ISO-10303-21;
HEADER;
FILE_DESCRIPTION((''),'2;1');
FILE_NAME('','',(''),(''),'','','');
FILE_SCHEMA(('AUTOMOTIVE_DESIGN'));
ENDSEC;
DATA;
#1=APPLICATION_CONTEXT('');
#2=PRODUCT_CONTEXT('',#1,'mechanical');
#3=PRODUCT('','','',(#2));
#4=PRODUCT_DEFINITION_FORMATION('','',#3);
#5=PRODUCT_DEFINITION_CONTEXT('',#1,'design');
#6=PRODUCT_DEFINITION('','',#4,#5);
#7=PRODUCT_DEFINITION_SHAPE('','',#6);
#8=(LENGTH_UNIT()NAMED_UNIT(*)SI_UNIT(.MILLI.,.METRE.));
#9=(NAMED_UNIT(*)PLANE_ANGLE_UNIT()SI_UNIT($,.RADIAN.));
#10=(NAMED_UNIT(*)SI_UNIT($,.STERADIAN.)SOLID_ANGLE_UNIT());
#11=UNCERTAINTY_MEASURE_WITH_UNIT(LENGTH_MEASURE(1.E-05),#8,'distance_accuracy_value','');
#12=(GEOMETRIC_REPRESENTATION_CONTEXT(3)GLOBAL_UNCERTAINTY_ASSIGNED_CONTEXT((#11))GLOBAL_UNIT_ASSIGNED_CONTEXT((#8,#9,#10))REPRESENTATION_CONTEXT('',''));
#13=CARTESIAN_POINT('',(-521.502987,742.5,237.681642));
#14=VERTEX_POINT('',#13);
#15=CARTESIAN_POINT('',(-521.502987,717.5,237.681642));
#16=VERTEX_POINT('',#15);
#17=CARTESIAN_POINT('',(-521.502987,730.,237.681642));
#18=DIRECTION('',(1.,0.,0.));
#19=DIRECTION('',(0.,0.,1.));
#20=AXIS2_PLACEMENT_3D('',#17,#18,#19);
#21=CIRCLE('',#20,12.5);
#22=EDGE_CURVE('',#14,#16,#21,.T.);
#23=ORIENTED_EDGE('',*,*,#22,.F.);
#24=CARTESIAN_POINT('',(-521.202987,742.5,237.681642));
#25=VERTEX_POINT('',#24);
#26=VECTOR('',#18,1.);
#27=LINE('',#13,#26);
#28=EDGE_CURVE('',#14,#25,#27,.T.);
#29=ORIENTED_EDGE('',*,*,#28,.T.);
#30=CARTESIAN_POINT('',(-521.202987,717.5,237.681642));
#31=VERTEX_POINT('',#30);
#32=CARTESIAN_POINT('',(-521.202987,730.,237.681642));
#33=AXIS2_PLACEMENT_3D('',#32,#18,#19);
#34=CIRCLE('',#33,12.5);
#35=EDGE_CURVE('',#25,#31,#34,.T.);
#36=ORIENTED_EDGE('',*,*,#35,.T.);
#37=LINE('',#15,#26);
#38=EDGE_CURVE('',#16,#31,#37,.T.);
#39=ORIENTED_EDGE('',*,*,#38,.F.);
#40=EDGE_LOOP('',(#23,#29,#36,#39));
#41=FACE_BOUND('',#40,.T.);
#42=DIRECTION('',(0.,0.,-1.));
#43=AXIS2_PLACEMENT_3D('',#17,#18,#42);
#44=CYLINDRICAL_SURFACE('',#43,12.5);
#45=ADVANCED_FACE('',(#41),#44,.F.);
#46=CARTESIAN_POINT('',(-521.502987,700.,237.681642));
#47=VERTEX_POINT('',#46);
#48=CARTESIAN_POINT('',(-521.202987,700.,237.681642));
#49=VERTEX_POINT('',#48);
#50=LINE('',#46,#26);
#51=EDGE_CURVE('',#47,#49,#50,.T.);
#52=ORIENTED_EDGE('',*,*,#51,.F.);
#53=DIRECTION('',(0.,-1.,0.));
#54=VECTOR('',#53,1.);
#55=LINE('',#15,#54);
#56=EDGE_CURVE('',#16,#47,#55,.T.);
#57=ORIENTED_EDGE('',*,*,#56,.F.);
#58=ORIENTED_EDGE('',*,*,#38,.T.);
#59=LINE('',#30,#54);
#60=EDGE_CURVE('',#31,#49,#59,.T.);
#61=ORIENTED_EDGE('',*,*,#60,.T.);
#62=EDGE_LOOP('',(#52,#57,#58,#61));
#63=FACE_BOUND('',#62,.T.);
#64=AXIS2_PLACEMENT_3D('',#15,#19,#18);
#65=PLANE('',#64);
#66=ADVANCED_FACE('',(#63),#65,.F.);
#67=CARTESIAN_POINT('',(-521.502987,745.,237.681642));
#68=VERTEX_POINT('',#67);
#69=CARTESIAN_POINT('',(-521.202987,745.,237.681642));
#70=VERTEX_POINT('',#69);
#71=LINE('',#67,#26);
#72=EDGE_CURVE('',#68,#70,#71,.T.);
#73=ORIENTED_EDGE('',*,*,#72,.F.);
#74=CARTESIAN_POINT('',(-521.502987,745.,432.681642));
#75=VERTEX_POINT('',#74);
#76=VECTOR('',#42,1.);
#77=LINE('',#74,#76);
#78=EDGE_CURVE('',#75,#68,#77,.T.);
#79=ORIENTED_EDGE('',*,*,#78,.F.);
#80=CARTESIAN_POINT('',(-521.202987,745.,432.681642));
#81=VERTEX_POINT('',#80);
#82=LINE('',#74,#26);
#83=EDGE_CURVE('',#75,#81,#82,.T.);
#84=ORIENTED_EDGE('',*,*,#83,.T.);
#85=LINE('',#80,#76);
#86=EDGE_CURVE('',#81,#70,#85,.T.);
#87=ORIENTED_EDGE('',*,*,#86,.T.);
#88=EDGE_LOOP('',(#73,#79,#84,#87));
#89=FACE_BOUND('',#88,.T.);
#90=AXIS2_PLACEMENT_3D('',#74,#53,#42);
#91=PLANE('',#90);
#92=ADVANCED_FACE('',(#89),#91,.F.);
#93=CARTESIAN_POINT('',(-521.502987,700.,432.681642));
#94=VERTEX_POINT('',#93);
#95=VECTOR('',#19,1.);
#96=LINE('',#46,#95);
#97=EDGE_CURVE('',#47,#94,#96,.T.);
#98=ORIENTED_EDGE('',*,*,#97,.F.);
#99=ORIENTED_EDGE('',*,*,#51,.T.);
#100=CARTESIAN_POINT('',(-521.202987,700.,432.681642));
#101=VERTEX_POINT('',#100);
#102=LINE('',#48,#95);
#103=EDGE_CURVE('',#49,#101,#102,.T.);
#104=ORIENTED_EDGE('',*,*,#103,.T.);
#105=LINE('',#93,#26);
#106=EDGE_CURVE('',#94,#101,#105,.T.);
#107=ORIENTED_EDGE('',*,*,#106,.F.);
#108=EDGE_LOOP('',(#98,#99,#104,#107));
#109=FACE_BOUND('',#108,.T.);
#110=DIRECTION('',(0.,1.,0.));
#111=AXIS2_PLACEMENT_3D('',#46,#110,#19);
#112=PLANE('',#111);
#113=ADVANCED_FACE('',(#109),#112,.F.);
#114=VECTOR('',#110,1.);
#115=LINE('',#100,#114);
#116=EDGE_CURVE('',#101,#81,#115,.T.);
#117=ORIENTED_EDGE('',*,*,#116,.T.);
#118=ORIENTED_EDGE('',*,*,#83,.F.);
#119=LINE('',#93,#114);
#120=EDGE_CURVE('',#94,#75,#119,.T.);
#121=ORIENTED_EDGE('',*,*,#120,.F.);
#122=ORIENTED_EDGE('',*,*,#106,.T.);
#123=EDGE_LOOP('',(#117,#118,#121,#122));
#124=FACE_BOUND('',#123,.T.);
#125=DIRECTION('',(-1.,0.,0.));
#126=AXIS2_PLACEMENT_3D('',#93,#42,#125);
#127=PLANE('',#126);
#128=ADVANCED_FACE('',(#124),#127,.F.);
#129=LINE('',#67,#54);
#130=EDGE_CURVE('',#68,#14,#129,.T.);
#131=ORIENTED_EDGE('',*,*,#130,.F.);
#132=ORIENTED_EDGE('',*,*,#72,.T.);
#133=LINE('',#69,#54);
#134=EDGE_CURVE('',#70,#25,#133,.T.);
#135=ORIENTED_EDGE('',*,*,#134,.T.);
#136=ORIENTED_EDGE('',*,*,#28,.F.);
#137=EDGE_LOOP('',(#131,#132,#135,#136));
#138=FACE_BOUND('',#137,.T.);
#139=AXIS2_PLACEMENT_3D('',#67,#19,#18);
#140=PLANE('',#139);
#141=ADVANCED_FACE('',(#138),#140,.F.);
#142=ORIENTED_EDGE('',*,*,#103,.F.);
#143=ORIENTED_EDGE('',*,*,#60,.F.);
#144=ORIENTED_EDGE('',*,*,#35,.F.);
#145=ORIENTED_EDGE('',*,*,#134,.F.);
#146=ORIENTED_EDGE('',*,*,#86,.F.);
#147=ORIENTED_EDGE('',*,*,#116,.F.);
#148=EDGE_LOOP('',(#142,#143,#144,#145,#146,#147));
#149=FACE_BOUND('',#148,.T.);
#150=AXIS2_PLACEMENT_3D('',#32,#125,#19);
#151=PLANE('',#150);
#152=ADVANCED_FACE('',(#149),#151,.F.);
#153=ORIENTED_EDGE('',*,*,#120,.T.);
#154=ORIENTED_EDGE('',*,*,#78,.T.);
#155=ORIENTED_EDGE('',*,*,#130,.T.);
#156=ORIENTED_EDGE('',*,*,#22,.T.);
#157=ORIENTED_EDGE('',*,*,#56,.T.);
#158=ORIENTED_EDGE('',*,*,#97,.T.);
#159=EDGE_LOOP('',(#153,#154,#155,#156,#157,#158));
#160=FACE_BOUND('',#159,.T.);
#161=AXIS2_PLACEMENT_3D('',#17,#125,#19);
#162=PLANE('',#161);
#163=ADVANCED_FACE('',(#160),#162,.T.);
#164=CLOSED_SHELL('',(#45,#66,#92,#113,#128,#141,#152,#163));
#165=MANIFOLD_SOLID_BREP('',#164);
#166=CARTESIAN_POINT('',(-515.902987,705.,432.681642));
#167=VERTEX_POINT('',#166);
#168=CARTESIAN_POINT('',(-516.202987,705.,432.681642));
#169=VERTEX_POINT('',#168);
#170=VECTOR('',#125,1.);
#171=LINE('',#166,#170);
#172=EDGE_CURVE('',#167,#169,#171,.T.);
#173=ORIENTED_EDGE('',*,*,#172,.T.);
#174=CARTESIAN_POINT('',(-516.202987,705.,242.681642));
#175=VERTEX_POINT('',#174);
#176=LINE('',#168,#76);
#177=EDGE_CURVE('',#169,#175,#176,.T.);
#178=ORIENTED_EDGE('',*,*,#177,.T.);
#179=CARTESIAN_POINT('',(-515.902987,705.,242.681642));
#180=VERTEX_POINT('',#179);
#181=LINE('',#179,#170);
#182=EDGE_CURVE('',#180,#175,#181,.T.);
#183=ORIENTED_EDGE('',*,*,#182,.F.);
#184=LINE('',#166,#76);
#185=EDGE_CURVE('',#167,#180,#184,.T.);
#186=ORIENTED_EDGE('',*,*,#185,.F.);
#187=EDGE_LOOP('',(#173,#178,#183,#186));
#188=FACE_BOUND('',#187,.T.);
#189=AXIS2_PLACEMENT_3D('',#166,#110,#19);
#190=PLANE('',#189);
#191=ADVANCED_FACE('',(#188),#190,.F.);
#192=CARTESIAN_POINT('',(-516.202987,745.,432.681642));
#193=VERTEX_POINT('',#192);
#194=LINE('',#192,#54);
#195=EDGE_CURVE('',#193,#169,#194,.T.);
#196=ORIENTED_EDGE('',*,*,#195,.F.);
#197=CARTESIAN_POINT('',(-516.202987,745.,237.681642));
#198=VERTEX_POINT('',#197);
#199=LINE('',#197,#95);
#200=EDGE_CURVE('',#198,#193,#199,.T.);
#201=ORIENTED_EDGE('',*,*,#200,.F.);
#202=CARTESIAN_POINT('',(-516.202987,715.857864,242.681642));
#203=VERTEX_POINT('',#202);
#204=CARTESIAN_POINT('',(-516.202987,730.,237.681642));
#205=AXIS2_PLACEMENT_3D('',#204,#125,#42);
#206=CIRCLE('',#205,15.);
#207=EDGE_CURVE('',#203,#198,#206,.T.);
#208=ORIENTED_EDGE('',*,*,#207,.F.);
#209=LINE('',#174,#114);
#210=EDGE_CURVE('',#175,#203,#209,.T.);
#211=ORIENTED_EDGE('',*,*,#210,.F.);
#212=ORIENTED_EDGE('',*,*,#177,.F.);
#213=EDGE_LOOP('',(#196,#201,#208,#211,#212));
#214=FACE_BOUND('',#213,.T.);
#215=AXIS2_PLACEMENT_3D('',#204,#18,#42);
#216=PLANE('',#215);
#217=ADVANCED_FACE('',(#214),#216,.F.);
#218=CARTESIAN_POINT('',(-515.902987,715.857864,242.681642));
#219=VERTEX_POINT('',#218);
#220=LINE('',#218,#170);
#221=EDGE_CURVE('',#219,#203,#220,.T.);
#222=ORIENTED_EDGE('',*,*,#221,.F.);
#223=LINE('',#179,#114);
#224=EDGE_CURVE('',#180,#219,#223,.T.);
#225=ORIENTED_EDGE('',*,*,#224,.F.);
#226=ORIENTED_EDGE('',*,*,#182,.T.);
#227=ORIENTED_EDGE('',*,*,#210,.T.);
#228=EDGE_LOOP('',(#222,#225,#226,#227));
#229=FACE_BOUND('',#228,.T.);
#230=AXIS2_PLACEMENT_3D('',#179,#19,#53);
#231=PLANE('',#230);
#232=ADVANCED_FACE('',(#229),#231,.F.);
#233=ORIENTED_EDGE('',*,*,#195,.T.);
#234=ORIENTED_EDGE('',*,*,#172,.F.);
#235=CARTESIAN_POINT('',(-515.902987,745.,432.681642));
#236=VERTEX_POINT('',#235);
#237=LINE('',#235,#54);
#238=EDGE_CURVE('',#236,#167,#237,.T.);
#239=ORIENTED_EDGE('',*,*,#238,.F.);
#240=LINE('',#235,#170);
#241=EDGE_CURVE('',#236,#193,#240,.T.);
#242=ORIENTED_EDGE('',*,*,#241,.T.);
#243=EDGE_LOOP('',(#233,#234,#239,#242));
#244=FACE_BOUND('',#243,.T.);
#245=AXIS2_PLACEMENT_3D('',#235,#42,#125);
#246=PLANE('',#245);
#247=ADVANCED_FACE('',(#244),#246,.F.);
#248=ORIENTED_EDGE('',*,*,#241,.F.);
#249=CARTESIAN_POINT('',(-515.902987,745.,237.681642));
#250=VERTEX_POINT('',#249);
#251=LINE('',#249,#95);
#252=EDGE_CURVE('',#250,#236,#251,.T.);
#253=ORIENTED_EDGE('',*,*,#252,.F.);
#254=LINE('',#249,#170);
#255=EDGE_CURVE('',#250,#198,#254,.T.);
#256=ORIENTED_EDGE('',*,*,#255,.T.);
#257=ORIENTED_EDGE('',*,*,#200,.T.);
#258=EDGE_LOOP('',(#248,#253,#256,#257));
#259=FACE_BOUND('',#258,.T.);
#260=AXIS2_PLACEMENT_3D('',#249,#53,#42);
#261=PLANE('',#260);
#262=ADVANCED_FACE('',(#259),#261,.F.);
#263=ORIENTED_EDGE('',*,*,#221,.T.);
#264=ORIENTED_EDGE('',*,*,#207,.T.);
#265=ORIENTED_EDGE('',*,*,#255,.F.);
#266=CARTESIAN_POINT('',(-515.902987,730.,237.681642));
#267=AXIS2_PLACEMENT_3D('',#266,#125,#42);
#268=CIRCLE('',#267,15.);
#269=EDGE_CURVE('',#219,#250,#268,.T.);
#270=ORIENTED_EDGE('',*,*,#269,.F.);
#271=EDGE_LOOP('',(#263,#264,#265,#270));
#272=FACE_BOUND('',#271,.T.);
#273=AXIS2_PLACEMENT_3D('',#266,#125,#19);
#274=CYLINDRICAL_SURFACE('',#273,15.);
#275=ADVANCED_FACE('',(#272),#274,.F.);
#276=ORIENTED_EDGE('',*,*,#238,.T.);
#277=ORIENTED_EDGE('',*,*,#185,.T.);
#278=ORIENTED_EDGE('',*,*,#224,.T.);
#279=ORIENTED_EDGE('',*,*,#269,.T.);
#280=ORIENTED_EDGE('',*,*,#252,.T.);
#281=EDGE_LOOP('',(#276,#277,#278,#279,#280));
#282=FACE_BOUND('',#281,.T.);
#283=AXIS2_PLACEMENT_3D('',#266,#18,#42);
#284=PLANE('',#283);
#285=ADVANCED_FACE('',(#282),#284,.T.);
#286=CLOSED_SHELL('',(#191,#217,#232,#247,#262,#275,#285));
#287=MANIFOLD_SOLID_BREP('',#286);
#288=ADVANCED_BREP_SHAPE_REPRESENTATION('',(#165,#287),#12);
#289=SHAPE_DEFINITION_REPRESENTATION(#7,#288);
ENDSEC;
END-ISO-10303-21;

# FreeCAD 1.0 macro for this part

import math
import FreeCAD as App
import Part
import Sketcher

V = App.Vector
Q = App.Units.Quantity

doc = App.newDocument("Part")
body = doc.addObject("PartDesign::Body", "Body")

sketch1 = body.newObject("Sketcher::SketchObject", "Sketch")
sketch1.AttachmentSupport = (doc.getObject("YZ_Plane"), [""])
sketch1.MapMode = "FlatFace"
sketch1.AttachmentOffset = App.Placement(V(0, 0, -516.202987), App.Rotation())
sketch1.addGeometry([
    Part.LineSegment(V(705, 432.681642, 0), V(705, 242.681642, 0)),
    Part.LineSegment(V(705, 242.681642, 0), V(715.857864, 242.681642, 0)),
    Part.ArcOfCircle(Part.Circle(V(730, 237.681642, 0), V(0, 0, 1), 15), math.radians(0), math.radians(160.528779)),
    Part.LineSegment(V(745, 237.681642, 0), V(745, 432.681642, 0)),
    Part.LineSegment(V(745, 432.681642, 0), V(705, 432.681642, 0)),
], False)
sketch1.addConstraint([
    Sketcher.Constraint("Coincident", 0, 2, 1, 1),
    Sketcher.Constraint("Coincident", 1, 2, 2, 2),
    Sketcher.Constraint("Tangent", 2, 1, 3, 1),
    Sketcher.Constraint("Coincident", 3, 2, 4, 1),
    Sketcher.Constraint("Coincident", 4, 2, 0, 1),
    Sketcher.Constraint("Vertical", 0),
    Sketcher.Constraint("Horizontal", 1),
    Sketcher.Constraint("Vertical", 3),
    Sketcher.Constraint("Horizontal", 4),
    Sketcher.Constraint("Radius", 2, Q("15 mm")),
    Sketcher.Constraint("DistanceX", 4, 2, 4, 1, Q("40 mm")),
    Sketcher.Constraint("DistanceY", 0, 2, 0, 1, Q("190 mm")),
    Sketcher.Constraint("DistanceY", 3, 1, 3, 2, Q("195 mm")),
    Sketcher.Constraint("DistanceX", -1, 1, 2, 3, Q("730 mm")),
    Sketcher.Constraint("DistanceY", -1, 1, 2, 3, Q("237.681642 mm")),
])
pad1 = body.newObject("PartDesign::Pad", "Pad")
pad1.Profile = sketch1
pad1.Length = 0.3
body2 = doc.addObject("PartDesign::Body", "Body001")

sketch2 = body2.newObject("Sketcher::SketchObject", "Sketch001")
sketch2.AttachmentSupport = (doc.getObject("YZ_Plane001"), [""])
sketch2.MapMode = "FlatFace"
sketch2.AttachmentOffset = App.Placement(V(0, 0, -521.202987), App.Rotation())
sketch2.addGeometry([
    Part.LineSegment(V(700, 432.681642, 0), V(745, 432.681642, 0)),
    Part.LineSegment(V(745, 432.681642, 0), V(745, 237.681642, 0)),
    Part.LineSegment(V(745, 237.681642, 0), V(742.5, 237.681642, 0)),
    Part.ArcOfCircle(Part.Circle(V(730, 237.681642, 0), V(0, 0, 1), 12.5), math.radians(0), math.radians(180)),
    Part.LineSegment(V(717.5, 237.681642, 0), V(700, 237.681642, 0)),
    Part.LineSegment(V(700, 237.681642, 0), V(700, 432.681642, 0)),
], False)
sketch2.addConstraint([
    Sketcher.Constraint("Coincident", 0, 2, 1, 1),
    Sketcher.Constraint("Coincident", 1, 2, 2, 1),
    Sketcher.Constraint("Coincident", 2, 2, 3, 1),
    Sketcher.Constraint("Coincident", 3, 2, 4, 1),
    Sketcher.Constraint("Coincident", 4, 2, 5, 1),
    Sketcher.Constraint("Coincident", 5, 2, 0, 1),
    Sketcher.Constraint("Horizontal", 0),
    Sketcher.Constraint("Vertical", 1),
    Sketcher.Constraint("Horizontal", 2),
    Sketcher.Constraint("Horizontal", 4),
    Sketcher.Constraint("Vertical", 5),
    Sketcher.Constraint("Horizontal", 3, 3, 1, 2),
    Sketcher.Constraint("Horizontal", 2, 2, 3, 2),
    Sketcher.Constraint("Radius", 3, Q("12.5 mm")),
    Sketcher.Constraint("DistanceX", 0, 1, 0, 2, Q("45 mm")),
    Sketcher.Constraint("DistanceY", 1, 2, 1, 1, Q("195 mm")),
    Sketcher.Constraint("DistanceX", 2, 2, 2, 1, Q("2.5 mm")),
    Sketcher.Constraint("DistanceX", -1, 1, 3, 3, Q("730 mm")),
    Sketcher.Constraint("DistanceY", -1, 1, 3, 3, Q("237.681642 mm")),
])
pad2 = body2.newObject("PartDesign::Pad", "Pad001")
pad2.Profile = sketch2
pad2.Length = 0.3
pad2.Reversed = True

doc.recompute()
